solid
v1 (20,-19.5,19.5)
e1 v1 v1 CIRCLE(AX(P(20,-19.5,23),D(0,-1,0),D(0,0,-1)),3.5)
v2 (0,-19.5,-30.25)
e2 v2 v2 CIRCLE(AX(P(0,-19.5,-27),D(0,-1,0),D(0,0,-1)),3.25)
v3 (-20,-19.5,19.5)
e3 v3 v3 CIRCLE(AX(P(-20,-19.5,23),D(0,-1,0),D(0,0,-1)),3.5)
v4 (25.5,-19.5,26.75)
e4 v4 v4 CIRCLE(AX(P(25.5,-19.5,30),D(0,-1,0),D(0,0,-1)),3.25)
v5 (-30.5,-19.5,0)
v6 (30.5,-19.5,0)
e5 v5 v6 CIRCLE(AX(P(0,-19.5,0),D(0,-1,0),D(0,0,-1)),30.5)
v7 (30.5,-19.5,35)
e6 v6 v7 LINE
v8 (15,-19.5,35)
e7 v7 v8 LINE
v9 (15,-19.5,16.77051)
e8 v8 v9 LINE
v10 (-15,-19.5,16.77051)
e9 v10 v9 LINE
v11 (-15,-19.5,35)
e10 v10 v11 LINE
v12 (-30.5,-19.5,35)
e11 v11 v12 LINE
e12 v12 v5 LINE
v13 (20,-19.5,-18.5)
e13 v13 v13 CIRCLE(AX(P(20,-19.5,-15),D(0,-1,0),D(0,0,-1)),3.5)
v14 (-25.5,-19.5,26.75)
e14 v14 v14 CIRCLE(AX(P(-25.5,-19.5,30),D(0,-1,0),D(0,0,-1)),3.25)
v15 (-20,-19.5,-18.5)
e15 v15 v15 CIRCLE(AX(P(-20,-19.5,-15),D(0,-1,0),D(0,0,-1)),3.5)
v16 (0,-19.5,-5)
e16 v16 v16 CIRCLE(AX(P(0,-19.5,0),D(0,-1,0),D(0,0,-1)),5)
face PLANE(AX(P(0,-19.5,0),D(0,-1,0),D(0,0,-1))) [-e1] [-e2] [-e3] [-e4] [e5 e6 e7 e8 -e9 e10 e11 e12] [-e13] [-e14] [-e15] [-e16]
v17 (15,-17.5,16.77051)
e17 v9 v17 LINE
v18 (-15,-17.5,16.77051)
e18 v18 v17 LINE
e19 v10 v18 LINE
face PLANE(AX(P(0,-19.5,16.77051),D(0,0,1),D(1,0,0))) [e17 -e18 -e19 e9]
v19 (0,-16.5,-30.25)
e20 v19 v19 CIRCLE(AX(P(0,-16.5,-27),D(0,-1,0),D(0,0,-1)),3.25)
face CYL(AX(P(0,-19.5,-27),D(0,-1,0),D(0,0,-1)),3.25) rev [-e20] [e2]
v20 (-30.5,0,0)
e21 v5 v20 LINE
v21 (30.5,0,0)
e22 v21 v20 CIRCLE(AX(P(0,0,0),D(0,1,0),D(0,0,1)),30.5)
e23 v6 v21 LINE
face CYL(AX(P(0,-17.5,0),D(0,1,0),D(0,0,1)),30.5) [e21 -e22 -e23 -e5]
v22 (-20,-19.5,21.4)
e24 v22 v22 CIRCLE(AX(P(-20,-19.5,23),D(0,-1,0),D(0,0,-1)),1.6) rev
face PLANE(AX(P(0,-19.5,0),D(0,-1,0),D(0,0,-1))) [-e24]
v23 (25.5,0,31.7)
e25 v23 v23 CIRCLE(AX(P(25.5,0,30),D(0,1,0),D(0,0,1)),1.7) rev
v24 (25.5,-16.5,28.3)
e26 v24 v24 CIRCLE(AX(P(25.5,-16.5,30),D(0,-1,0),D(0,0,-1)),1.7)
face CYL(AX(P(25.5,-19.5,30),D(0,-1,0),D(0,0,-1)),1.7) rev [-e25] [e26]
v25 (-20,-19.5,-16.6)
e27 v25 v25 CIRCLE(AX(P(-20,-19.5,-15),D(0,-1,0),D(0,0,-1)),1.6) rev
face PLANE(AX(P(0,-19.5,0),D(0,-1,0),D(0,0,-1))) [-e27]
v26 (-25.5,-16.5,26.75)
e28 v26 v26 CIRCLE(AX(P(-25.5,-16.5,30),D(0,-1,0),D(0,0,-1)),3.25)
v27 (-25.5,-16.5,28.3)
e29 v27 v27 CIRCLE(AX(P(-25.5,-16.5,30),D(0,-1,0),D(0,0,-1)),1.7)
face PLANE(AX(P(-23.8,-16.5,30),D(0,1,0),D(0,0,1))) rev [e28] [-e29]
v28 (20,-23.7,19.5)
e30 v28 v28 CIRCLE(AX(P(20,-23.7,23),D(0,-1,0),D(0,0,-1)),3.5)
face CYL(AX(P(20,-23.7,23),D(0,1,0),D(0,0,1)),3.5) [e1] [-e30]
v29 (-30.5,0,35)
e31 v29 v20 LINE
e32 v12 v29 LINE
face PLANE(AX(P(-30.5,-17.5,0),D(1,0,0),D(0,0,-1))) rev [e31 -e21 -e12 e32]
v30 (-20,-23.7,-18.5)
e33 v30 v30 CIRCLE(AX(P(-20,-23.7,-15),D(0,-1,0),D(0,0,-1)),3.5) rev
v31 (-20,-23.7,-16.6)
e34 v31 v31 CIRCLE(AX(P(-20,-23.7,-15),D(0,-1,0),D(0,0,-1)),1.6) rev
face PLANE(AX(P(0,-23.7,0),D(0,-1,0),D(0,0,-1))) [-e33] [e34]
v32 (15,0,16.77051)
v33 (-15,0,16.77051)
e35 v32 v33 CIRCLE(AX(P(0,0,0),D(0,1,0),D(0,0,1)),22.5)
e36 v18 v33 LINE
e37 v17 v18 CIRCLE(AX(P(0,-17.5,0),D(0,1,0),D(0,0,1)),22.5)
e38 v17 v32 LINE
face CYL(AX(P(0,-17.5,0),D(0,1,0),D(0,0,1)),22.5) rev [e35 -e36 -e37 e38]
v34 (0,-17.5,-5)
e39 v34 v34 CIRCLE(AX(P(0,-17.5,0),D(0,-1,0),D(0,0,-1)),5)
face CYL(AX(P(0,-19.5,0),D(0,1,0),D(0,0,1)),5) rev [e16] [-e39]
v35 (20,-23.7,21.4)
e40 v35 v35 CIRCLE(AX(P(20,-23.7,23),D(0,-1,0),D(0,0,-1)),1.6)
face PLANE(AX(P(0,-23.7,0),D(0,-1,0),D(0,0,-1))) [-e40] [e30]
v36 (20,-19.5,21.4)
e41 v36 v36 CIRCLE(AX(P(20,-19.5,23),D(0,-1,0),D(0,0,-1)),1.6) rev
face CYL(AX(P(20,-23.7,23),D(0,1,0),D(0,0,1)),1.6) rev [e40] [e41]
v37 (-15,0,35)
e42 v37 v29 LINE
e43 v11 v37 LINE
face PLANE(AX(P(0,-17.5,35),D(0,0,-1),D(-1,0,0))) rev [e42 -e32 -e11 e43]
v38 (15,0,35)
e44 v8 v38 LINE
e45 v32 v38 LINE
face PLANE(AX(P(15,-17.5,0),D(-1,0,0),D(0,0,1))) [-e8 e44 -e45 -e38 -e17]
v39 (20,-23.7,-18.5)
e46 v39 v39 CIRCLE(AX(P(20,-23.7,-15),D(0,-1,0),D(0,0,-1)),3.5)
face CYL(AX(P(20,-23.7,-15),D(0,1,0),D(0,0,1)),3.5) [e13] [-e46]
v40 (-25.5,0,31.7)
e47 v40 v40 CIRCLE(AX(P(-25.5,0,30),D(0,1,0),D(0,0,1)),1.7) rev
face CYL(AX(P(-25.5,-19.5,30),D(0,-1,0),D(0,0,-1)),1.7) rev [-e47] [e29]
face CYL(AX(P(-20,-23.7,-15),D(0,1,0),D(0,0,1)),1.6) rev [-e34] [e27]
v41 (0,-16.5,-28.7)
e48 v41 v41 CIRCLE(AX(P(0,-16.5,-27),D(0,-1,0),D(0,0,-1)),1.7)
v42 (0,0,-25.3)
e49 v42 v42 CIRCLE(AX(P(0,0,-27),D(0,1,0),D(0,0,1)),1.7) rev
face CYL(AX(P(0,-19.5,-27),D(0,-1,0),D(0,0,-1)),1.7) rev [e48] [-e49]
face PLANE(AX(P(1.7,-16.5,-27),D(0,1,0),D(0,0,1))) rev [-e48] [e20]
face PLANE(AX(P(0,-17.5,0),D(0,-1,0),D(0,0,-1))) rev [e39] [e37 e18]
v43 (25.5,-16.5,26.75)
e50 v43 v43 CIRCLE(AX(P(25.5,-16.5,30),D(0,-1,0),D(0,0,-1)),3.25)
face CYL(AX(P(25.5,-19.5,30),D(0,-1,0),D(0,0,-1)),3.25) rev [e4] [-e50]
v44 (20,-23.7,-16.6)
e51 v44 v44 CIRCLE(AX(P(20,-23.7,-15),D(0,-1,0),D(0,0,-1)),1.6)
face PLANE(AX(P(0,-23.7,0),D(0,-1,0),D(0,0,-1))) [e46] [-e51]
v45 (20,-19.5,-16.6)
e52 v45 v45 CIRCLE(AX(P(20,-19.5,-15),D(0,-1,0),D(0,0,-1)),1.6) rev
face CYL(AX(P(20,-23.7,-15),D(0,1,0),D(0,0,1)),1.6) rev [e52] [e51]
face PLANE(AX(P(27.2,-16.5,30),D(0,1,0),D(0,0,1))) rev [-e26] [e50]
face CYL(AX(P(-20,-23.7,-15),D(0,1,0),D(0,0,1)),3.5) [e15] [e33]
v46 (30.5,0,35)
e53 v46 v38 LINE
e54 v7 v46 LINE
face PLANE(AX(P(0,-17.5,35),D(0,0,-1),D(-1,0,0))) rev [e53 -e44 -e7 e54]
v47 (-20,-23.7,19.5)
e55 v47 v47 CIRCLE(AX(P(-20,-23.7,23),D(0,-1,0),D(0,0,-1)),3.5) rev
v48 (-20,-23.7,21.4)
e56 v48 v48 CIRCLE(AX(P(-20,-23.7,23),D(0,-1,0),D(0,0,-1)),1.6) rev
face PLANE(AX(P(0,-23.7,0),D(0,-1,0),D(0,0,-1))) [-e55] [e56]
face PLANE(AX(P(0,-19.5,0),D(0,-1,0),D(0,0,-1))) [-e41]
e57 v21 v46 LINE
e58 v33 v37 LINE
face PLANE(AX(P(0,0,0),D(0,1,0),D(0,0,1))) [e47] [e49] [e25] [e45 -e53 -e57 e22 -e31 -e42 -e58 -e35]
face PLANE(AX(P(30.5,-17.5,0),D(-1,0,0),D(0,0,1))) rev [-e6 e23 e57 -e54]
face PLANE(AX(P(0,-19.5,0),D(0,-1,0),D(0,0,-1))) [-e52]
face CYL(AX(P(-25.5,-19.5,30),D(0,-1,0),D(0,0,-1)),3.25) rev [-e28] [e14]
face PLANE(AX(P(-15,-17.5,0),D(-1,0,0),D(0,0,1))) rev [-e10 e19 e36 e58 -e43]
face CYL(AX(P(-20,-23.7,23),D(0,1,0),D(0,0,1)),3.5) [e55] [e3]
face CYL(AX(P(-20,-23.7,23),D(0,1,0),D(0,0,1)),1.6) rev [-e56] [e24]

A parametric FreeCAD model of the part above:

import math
import FreeCAD as App
import Part
import Sketcher
from FreeCAD import Vector
Q = App.Units.Quantity

doc = App.newDocument("Part")
params = doc.addObject("Spreadsheet::Sheet", "Params")
for row, (alias, value) in enumerate([
    ("sketch1_radius", "22.5 mm"),
    ("sketch1_radius2", "30.5 mm"),
    ("sketch1_height", "35 mm"),
    ("sketch1_width", "15.5 mm"),
    ("pad1_length", "17.5 mm"),
    ("sketch2_diameter", "10 mm"),
    ("sketch2_radius", "30.5 mm"),
    ("sketch2_width", "30 mm"),
    ("sketch2_height", "35 mm"),
    ("pad2_length", "2 mm"),
    ("sketch3_diameter", "7 mm"),
    ("sketch3_diameter2", "3.2 mm"),
    ("pad3_length", "4.2 mm"),
    ("sketch4_diameter", "3.4 mm"),
    ("hole_diameter", "3.4 mm"),
    ("hole_depth", "19.5 mm"),
    ("hole_cbore_diameter", "6.5 mm"),
    ("hole_cbore_depth", "3 mm"),
], start=1):
    params.set(f"A{row}", alias)
    params.set(f"B{row}", "=" + value)
    params.setAlias(f"B{row}", alias)

body = doc.addObject("PartDesign::Body", "Body")

# Sketch on XZ plane
sketch1 = body.newObject("Sketcher::SketchObject", "Sketch")
sketch1.AttachmentSupport = (doc.getObject("XZ_Plane"), [""])
sketch1.MapMode = "FlatFace"
sketch1.addGeometry(Part.ArcOfCircle(Part.Circle(Vector(0, 0, 0), Vector(0, 0, 1), 22.5), math.radians(131.810315), math.radians(360)), False)
sketch1.addGeometry(Part.ArcOfCircle(Part.Circle(Vector(0, 0, 0), Vector(0, 0, 1), 22.5), math.radians(0), math.radians(48.189685)), False)
sketch1.addGeometry(Part.LineSegment(Vector(15, 16.77051, 0), Vector(15, 35, 0)), False)
sketch1.addGeometry(Part.LineSegment(Vector(15, 35, 0), Vector(30.5, 35, 0)), False)
sketch1.addGeometry(Part.LineSegment(Vector(30.5, 35, 0), Vector(30.5, 0, 0)), False)
sketch1.addGeometry(Part.ArcOfCircle(Part.Circle(Vector(0, 0, 0), Vector(0, 0, 1), 30.5), math.radians(180), math.radians(360)), False)
sketch1.addGeometry(Part.LineSegment(Vector(-30.5, 0, 0), Vector(-30.5, 35, 0)), False)
sketch1.addGeometry(Part.LineSegment(Vector(-30.5, 35, 0), Vector(-15, 35, 0)), False)
sketch1.addGeometry(Part.LineSegment(Vector(-15, 35, 0), Vector(-15, 16.77051, 0)), False)
sketch1.addConstraint(Sketcher.Constraint("Tangent", 0, 2, 1, 1))
sketch1.addConstraint(Sketcher.Constraint("Coincident", 1, 2, 2, 1))
sketch1.addConstraint(Sketcher.Constraint("Coincident", 2, 2, 3, 1))
sketch1.addConstraint(Sketcher.Constraint("Coincident", 3, 2, 4, 1))
sketch1.addConstraint(Sketcher.Constraint("Tangent", 4, 2, 5, 2))
sketch1.addConstraint(Sketcher.Constraint("Tangent", 5, 1, 6, 1))
sketch1.addConstraint(Sketcher.Constraint("Coincident", 6, 2, 7, 1))
sketch1.addConstraint(Sketcher.Constraint("Coincident", 7, 2, 8, 1))
sketch1.addConstraint(Sketcher.Constraint("Coincident", 8, 2, 0, 1))
sketch1.addConstraint(Sketcher.Constraint("Vertical", 2))
sketch1.addConstraint(Sketcher.Constraint("Horizontal", 3))
sketch1.addConstraint(Sketcher.Constraint("Vertical", 4))
sketch1.addConstraint(Sketcher.Constraint("Vertical", 6))
sketch1.addConstraint(Sketcher.Constraint("Horizontal", 7))
sketch1.addConstraint(Sketcher.Constraint("Vertical", 8))
sketch1.addConstraint(Sketcher.Constraint("Coincident", 0, 3, -1, 1))
sketch1.addConstraint(Sketcher.Constraint("Coincident", 5, 3, -1, 1))
sketch1.addConstraint(Sketcher.Constraint("Equal", 0, 1))
sketch1.addConstraint(Sketcher.Constraint("Symmetric", 2, 2, 7, 2, -2))
sketch1.addConstraint(Sketcher.Constraint("PointOnObject", 0, 2, -1))
sketch1.addConstraint(Sketcher.Constraint("Radius", 0, Q("22.5 mm")))
sketch1.addConstraint(Sketcher.Constraint("Radius", 5, Q("30.5 mm")))
sketch1.addConstraint(Sketcher.Constraint("DistanceY", 4, 2, 4, 1, Q("35 mm")))
sketch1.addConstraint(Sketcher.Constraint("DistanceX", 3, 1, 3, 2, Q("15.5 mm")))
sketch1.setExpression("Constraints[20]", "Params.sketch1_radius")
sketch1.setExpression("Constraints[21]", "Params.sketch1_radius2")
sketch1.setExpression("Constraints[22]", "Params.sketch1_height")
sketch1.setExpression("Constraints[23]", "Params.sketch1_width")
pad1 = body.newObject("PartDesign::Pad", "Pad")
pad1.Profile = sketch1
pad1.setExpression("Length", "Params.pad1_length")

# Sketch on XZ plane
sketch2 = body.newObject("Sketcher::SketchObject", "Sketch001")
sketch2.AttachmentSupport = (doc.getObject("XZ_Plane"), [""])
sketch2.MapMode = "FlatFace"
sketch2.AttachmentOffset = App.Placement(Vector(0, 0, 17.5), App.Rotation())
sketch2.addGeometry(Part.LineSegment(Vector(15, 16.77051, 0), Vector(-15, 16.77051, 0)), False)
sketch2.addGeometry(Part.LineSegment(Vector(-15, 16.77051, 0), Vector(-15, 35, 0)), False)
sketch2.addGeometry(Part.LineSegment(Vector(-15, 35, 0), Vector(-30.5, 35, 0)), False)
sketch2.addGeometry(Part.LineSegment(Vector(-30.5, 35, 0), Vector(-30.5, 0, 0)), False)
sketch2.addGeometry(Part.ArcOfCircle(Part.Circle(Vector(0, 0, 0), Vector(0, 0, 1), 30.5), math.radians(180), math.radians(360)), False)
sketch2.addGeometry(Part.LineSegment(Vector(30.5, 0, 0), Vector(30.5, 35, 0)), False)
sketch2.addGeometry(Part.LineSegment(Vector(30.5, 35, 0), Vector(15, 35, 0)), False)
sketch2.addGeometry(Part.LineSegment(Vector(15, 35, 0), Vector(15, 16.77051, 0)), False)
sketch2.addGeometry(Part.Circle(Vector(0, 0, 0), Vector(0, 0, 1), 5), False)
sketch2.addConstraint(Sketcher.Constraint("Coincident", 0, 2, 1, 1))
sketch2.addConstraint(Sketcher.Constraint("Coincident", 1, 2, 2, 1))
sketch2.addConstraint(Sketcher.Constraint("Coincident", 2, 2, 3, 1))
sketch2.addConstraint(Sketcher.Constraint("Tangent", 3, 2, 4, 1))
sketch2.addConstraint(Sketcher.Constraint("Tangent", 4, 2, 5, 1))
sketch2.addConstraint(Sketcher.Constraint("Coincident", 5, 2, 6, 1))
sketch2.addConstraint(Sketcher.Constraint("Coincident", 6, 2, 7, 1))
sketch2.addConstraint(Sketcher.Constraint("Coincident", 7, 2, 0, 1))
sketch2.addConstraint(Sketcher.Constraint("Horizontal", 0))
sketch2.addConstraint(Sketcher.Constraint("Vertical", 1))
sketch2.addConstraint(Sketcher.Constraint("Horizontal", 2))
sketch2.addConstraint(Sketcher.Constraint("Vertical", 3))
sketch2.addConstraint(Sketcher.Constraint("Vertical", 5))
sketch2.addConstraint(Sketcher.Constraint("Horizontal", 6))
sketch2.addConstraint(Sketcher.Constraint("Vertical", 7))
sketch2.addConstraint(Sketcher.Constraint("Coincident", 4, 3, -1, 1))
sketch2.addConstraint(Sketcher.Constraint("Coincident", 8, 3, -1, 1))
sketch2.addConstraint(Sketcher.Constraint("Symmetric", 1, 2, 6, 2, -2))
sketch2.addConstraint(Sketcher.Constraint("Diameter", 8, Q("10 mm")))
sketch2.addConstraint(Sketcher.Constraint("Radius", 4, Q("30.5 mm")))
sketch2.addConstraint(Sketcher.Constraint("DistanceX", 0, 2, 0, 1, Q("30 mm")))
sketch2.addConstraint(Sketcher.Constraint("DistanceY", 3, 2, 3, 1, Q("35 mm")))
sketch2.addConstraint(Sketcher.Constraint("DistanceY", 1, 1, 1, 2, Q("18.22949 mm")))
sketch2.setExpression("Constraints[18]", "Params.sketch2_diameter")
sketch2.setExpression("Constraints[19]", "Params.sketch2_radius")
sketch2.setExpression("Constraints[20]", "Params.sketch2_width")
sketch2.setExpression("Constraints[21]", "Params.sketch2_height")
pad2 = body.newObject("PartDesign::Pad", "Pad001")
pad2.Profile = sketch2
pad2.setExpression("Length", "Params.pad2_length")

# Sketch on XZ plane
sketch3 = body.newObject("Sketcher::SketchObject", "Sketch002")
sketch3.AttachmentSupport = (doc.getObject("XZ_Plane"), [""])
sketch3.MapMode = "FlatFace"
sketch3.AttachmentOffset = App.Placement(Vector(0, 0, 19.5), App.Rotation())
sketch3.addGeometry(Part.Circle(Vector(-20, 23, 0), Vector(0, 0, 1), 3.5), False)
sketch3.addGeometry(Part.Circle(Vector(-20, 23, 0), Vector(0, 0, 1), 1.6), False)
sketch3.addGeometry(Part.Circle(Vector(20, 23, 0), Vector(0, 0, 1), 3.5), False)
sketch3.addGeometry(Part.Circle(Vector(20, 23, 0), Vector(0, 0, 1), 1.6), False)
sketch3.addGeometry(Part.Circle(Vector(20, -15, 0), Vector(0, 0, 1), 3.5), False)
sketch3.addGeometry(Part.Circle(Vector(20, -15, 0), Vector(0, 0, 1), 1.6), False)
sketch3.addGeometry(Part.Circle(Vector(-20, -15, 0), Vector(0, 0, 1), 3.5), False)
sketch3.addGeometry(Part.Circle(Vector(-20, -15, 0), Vector(0, 0, 1), 1.6), False)
sketch3.addConstraint(Sketcher.Constraint("Coincident", 1, 3, 0, 3))
sketch3.addConstraint(Sketcher.Constraint("Coincident", 3, 3, 2, 3))
sketch3.addConstraint(Sketcher.Constraint("Coincident", 5, 3, 4, 3))
sketch3.addConstraint(Sketcher.Constraint("Coincident", 7, 3, 6, 3))
sketch3.addConstraint(Sketcher.Constraint("Equal", 0, 2))
sketch3.addConstraint(Sketcher.Constraint("Equal", 1, 3))
sketch3.addConstraint(Sketcher.Constraint("Equal", 2, 4))
sketch3.addConstraint(Sketcher.Constraint("Equal", 3, 5))
sketch3.addConstraint(Sketcher.Constraint("Equal", 4, 6))
sketch3.addConstraint(Sketcher.Constraint("Equal", 5, 7))
sketch3.addConstraint(Sketcher.Constraint("Symmetric", 0, 3, 2, 3, -2))
sketch3.addConstraint(Sketcher.Constraint("Symmetric", 4, 3, 6, 3, -2))
sketch3.addConstraint(Sketcher.Constraint("Vertical", 3, 3, 4, 3))
sketch3.addConstraint(Sketcher.Constraint("Diameter", 0, Q("7 mm")))
sketch3.addConstraint(Sketcher.Constraint("Diameter", 1, Q("3.2 mm")))
sketch3.addConstraint(Sketcher.Constraint("DistanceX", 0, 3, -1, 1, Q("20 mm")))
sketch3.addConstraint(Sketcher.Constraint("DistanceY", -1, 1, 0, 3, Q("23 mm")))
sketch3.addConstraint(Sketcher.Constraint("DistanceY", 4, 3, -1, 1, Q("15 mm")))
sketch3.setExpression("Constraints[13]", "Params.sketch3_diameter")
sketch3.setExpression("Constraints[14]", "Params.sketch3_diameter2")
pad3 = body.newObject("PartDesign::Pad", "Pad002")
pad3.Profile = sketch3
pad3.setExpression("Length", "Params.pad3_length")

# Sketch on XZ plane
sketch4 = body.newObject("Sketcher::SketchObject", "Sketch003")
sketch4.AttachmentSupport = (doc.getObject("XZ_Plane"), [""])
sketch4.MapMode = "FlatFace"
sketch4.AttachmentOffset = App.Placement(Vector(0, 0, 19.5), App.Rotation())
sketch4.addGeometry(Part.Circle(Vector(0, -27, 0), Vector(0, 0, 1), 1.7), False)
sketch4.addGeometry(Part.Circle(Vector(25.5, 30, 0), Vector(0, 0, 1), 1.7), False)
sketch4.addGeometry(Part.Circle(Vector(-25.5, 30, 0), Vector(0, 0, 1), 1.7), False)
sketch4.addConstraint(Sketcher.Constraint("Equal", 0, 1))
sketch4.addConstraint(Sketcher.Constraint("Equal", 1, 2))
sketch4.addConstraint(Sketcher.Constraint("Symmetric", 1, 3, 2, 3, -2))
sketch4.addConstraint(Sketcher.Constraint("PointOnObject", 0, 3, -2))
sketch4.addConstraint(Sketcher.Constraint("Diameter", 0, Q("3.4 mm")))
sketch4.addConstraint(Sketcher.Constraint("DistanceY", 0, 3, -1, 1, Q("27 mm")))
sketch4.addConstraint(Sketcher.Constraint("DistanceY", -1, 1, 1, 3, Q("30 mm")))
sketch4.addConstraint(Sketcher.Constraint("DistanceX", 2, 3, 1, 3, Q("51 mm")))
sketch4.setExpression("Constraints[4]", "Params.sketch4_diameter")
doc.recompute()
hole = body.newObject("PartDesign::Hole", "Hole")
hole.Profile = sketch4
hole.ThreadType = "None"
hole.setExpression("Diameter", "Params.hole_diameter")
hole.DepthType = "Dimension"
hole.setExpression("Depth", "Params.hole_depth")
hole.DrillPoint = "Angled"
hole.DrillPointAngle = 118
hole.HoleCutType = "Counterbore"
hole.setExpression("HoleCutDiameter", "Params.hole_cbore_diameter")
hole.setExpression("HoleCutDepth", "Params.hole_cbore_depth")

doc.recompute()
